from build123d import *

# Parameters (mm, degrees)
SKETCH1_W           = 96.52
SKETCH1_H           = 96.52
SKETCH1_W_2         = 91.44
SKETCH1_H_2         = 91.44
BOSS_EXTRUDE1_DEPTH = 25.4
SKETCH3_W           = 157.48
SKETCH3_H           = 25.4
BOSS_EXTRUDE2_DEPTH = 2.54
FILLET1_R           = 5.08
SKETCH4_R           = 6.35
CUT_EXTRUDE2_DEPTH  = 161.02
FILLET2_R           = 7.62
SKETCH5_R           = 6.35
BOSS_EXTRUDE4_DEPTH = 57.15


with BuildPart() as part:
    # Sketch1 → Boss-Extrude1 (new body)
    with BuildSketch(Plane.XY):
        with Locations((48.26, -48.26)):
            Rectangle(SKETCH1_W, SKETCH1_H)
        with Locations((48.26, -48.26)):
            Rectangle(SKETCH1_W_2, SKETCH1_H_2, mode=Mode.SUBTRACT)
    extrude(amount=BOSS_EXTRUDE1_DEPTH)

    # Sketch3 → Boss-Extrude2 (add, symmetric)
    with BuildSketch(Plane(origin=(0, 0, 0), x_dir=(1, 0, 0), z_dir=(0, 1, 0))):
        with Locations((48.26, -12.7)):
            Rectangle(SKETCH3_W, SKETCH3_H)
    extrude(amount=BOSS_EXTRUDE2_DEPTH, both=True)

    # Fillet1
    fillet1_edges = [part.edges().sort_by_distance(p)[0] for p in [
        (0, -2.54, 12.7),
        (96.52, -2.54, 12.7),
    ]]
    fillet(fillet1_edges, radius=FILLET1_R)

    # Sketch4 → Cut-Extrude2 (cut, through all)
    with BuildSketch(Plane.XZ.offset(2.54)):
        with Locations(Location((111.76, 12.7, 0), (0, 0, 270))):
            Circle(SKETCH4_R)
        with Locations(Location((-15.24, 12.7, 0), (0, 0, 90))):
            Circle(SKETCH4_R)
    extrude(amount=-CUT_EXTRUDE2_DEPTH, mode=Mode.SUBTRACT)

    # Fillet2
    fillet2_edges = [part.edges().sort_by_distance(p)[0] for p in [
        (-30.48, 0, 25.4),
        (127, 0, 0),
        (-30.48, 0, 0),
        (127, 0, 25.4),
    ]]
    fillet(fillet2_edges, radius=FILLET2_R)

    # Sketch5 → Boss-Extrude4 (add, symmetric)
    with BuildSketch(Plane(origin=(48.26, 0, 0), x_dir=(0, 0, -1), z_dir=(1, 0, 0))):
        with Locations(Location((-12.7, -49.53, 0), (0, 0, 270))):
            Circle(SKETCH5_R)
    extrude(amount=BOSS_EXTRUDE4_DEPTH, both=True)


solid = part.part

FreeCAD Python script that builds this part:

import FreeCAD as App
import Part
import Sketcher
Q = App.Units.Quantity


def edges_at(feature, points):
    """Names of the edges that pass closest to the given points."""
    edges = feature.Shape.Edges
    near = lambda p: min(range(len(edges)), key=lambda i: edges[i].distToShape(Part.Vertex(*p))[0])
    return sorted({f"Edge{near(p) + 1}" for p in points})


def add_polygon(sketch, points):
    """Adds a closed chain of lines whose ends are joined by coincident constraints."""
    first, n = sketch.GeometryCount, len(points)
    for a, b in zip(points, points[1:] + points[:1]):
        sketch.addGeometry(Part.LineSegment(App.Vector(*a, 0), App.Vector(*b, 0)), False)
    for i in range(n):
        sketch.addConstraint(Sketcher.Constraint("Coincident", first + i, 2, first + (i + 1) % n, 1))

doc = App.newDocument("Part")
params = doc.addObject("Spreadsheet::Sheet", "Params")
for row, (alias, value) in enumerate([
    ("sketch1_width", "3.8 in"),
    ("sketch1_width2", "3.6 in"),
    ("pad1_length", "1 in"),
    ("sketch2_height", "1 in"),
    ("sketch2_width", "6.2 in"),
    ("pad2_length", "0.2 in"),
    ("fillet_radius", "0.2 in"),
    ("sketch3_diameter", "0.5 in"),
    ("fillet2_radius", "0.3 in"),
    ("sketch4_diameter", "0.5 in"),
    ("pad3_length", "4.5 in"),
], start=1):
    params.set(f"A{row}", alias)
    params.set(f"B{row}", "=" + value)
    params.setAlias(f"B{row}", alias)

body = doc.addObject("PartDesign::Body", "Body")

sketch1 = doc.addObject("Sketcher::SketchObject", "Sketch")
body.addObject(sketch1)
sketch1.AttachmentSupport = (doc.XY_Plane, [""])
sketch1.MapMode = "FlatFace"
add_polygon(sketch1, [(0, 0), (0, -97), (97, -97), (97, 0)])
add_polygon(sketch1, [(94, -94), (3, -94), (3, -3), (94, -3)])
sketch1.addConstraint([
    Sketcher.Constraint("Vertical", 0),
    Sketcher.Constraint("Horizontal", 1),
    Sketcher.Constraint("Vertical", 2),
    Sketcher.Constraint("Horizontal", 3),
    Sketcher.Constraint("Horizontal", 4),
    Sketcher.Constraint("Vertical", 5),
    Sketcher.Constraint("Horizontal", 6),
    Sketcher.Constraint("Vertical", 7),
    Sketcher.Constraint("Coincident", 3, 2, -1, 1),
    Sketcher.Constraint("Equal", 3, 0),
    Sketcher.Constraint("Equal", 6, 5),
    Sketcher.Constraint("DistanceX", 1, 1, 1, 2, Q("3.8 in")),
    Sketcher.Constraint("DistanceX", 4, 2, 4, 1, Q("3.6 in")),
    Sketcher.Constraint("DistanceX", -1, 1, 4, 2, Q("0.1 in")),
    Sketcher.Constraint("DistanceY", 4, 2, -1, 1, Q("3.7 in")),
])
sketch1.setExpression("Constraints[19]", "Params.sketch1_width")
sketch1.setExpression("Constraints[20]", "Params.sketch1_width2")
pad1 = doc.addObject("PartDesign::Pad", "Pad")
body.addObject(pad1)
pad1.Profile = sketch1
pad1.setExpression("Length", "Params.pad1_length")

sketch2 = doc.addObject("Sketcher::SketchObject", "Sketch001")
body.addObject(sketch2)
sketch2.AttachmentSupport = (doc.XZ_Plane, [""])
sketch2.MapMode = "FlatFace"
add_polygon(sketch2, [(-30, 0), (-30, 25), (127, 25), (127, 0)])
sketch2.addConstraint([
    Sketcher.Constraint("Vertical", 0),
    Sketcher.Constraint("Horizontal", 1),
    Sketcher.Constraint("Vertical", 2),
    Sketcher.Constraint("Horizontal", 3),
    Sketcher.Constraint("PointOnObject", 2, 2, -1),
    Sketcher.Constraint("DistanceY", 0, 1, 0, 2, Q("1 in")),
    Sketcher.Constraint("DistanceX", 1, 1, 1, 2, Q("6.2 in")),
    Sketcher.Constraint("DistanceX", -1, 1, 1, 2, Q("5 in")),
])
sketch2.setExpression("Constraints[9]", "Params.sketch2_height")
sketch2.setExpression("Constraints[10]", "Params.sketch2_width")
pad2 = doc.addObject("PartDesign::Pad", "Pad001")
body.addObject(pad2)
pad2.Profile = sketch2
pad2.setExpression("Length", "Params.pad2_length")
pad2.Midplane = True
doc.recompute()

fillet = doc.addObject("PartDesign::Fillet", "Fillet")
body.addObject(fillet)
fillet.Base = (pad2, edges_at(pad2, [(0, -2.54, 12.7), (96.52, -2.54, 12.7)]))
fillet.setExpression("Radius", "Params.fillet_radius")

sketch3 = doc.addObject("Sketcher::SketchObject", "Sketch002")
body.addObject(sketch3)
sketch3.AttachmentSupport = (doc.XZ_Plane, [""])
sketch3.MapMode = "FlatFace"
sketch3.AttachmentOffset = App.Placement(App.Vector(0, 0, 0.1 * 25.4), App.Rotation())
sketch3.addGeometry([
    Part.Circle(App.Vector(112, 13, 0), App.Vector(0, 0, 1), 6),
    Part.Circle(App.Vector(-15, 13, 0), App.Vector(0, 0, 1), 6),
], False)
sketch3.addConstraint([
    Sketcher.Constraint("Equal", 0, 1),
    Sketcher.Constraint("Horizontal", 0, 3, 1, 3),
    Sketcher.Constraint("Diameter", 0, Q("0.5 in")),
    Sketcher.Constraint("DistanceX", 1, 3, 0, 3, Q("5 in")),
    Sketcher.Constraint("DistanceX", -1, 1, 0, 3, Q("4.4 in")),
    Sketcher.Constraint("DistanceY", -1, 1, 0, 3, Q("0.5 in")),
])
sketch3.setExpression("Constraints[2]", "Params.sketch3_diameter")
pocket1 = doc.addObject("PartDesign::Pocket", "Pocket")
body.addObject(pocket1)
pocket1.Profile = sketch3
pocket1.Type = "ThroughAll"
doc.recompute()

fillet2 = doc.addObject("PartDesign::Fillet", "Fillet001")
body.addObject(fillet2)
fillet2.Base = (pocket1, edges_at(pocket1, [
    (-30.48, 0, 25.4),
    (127, 0, 0),
    (-30.48, 0, 0),
    (127, 0, 25.4),
]))
fillet2.setExpression("Radius", "Params.fillet2_radius")

sketch4 = doc.addObject("Sketcher::SketchObject", "Sketch003")
body.addObject(sketch4)
sketch4.AttachmentSupport = (doc.YZ_Plane, [""])
sketch4.MapMode = "FlatFace"
sketch4.AttachmentOffset = App.Placement(App.Vector(0, 0, 1.9 * 25.4), App.Rotation())
sketch4.addGeometry(Part.Circle(App.Vector(-50, 13, 0), App.Vector(0, 0, 1), 6), False)
sketch4.addConstraint([
    Sketcher.Constraint("Diameter", 0, Q("0.5 in")),
    Sketcher.Constraint("DistanceY", -1, 1, 0, 3, Q("0.5 in")),
    Sketcher.Constraint("DistanceX", 0, 3, -1, 1, Q("1.95 in")),
])
sketch4.setExpression("Constraints[0]", "Params.sketch4_diameter")
pad3 = doc.addObject("PartDesign::Pad", "Pad002")
body.addObject(pad3)
pad3.Profile = sketch4
pad3.setExpression("Length", "Params.pad3_length")
pad3.Midplane = True

doc.recompute()
